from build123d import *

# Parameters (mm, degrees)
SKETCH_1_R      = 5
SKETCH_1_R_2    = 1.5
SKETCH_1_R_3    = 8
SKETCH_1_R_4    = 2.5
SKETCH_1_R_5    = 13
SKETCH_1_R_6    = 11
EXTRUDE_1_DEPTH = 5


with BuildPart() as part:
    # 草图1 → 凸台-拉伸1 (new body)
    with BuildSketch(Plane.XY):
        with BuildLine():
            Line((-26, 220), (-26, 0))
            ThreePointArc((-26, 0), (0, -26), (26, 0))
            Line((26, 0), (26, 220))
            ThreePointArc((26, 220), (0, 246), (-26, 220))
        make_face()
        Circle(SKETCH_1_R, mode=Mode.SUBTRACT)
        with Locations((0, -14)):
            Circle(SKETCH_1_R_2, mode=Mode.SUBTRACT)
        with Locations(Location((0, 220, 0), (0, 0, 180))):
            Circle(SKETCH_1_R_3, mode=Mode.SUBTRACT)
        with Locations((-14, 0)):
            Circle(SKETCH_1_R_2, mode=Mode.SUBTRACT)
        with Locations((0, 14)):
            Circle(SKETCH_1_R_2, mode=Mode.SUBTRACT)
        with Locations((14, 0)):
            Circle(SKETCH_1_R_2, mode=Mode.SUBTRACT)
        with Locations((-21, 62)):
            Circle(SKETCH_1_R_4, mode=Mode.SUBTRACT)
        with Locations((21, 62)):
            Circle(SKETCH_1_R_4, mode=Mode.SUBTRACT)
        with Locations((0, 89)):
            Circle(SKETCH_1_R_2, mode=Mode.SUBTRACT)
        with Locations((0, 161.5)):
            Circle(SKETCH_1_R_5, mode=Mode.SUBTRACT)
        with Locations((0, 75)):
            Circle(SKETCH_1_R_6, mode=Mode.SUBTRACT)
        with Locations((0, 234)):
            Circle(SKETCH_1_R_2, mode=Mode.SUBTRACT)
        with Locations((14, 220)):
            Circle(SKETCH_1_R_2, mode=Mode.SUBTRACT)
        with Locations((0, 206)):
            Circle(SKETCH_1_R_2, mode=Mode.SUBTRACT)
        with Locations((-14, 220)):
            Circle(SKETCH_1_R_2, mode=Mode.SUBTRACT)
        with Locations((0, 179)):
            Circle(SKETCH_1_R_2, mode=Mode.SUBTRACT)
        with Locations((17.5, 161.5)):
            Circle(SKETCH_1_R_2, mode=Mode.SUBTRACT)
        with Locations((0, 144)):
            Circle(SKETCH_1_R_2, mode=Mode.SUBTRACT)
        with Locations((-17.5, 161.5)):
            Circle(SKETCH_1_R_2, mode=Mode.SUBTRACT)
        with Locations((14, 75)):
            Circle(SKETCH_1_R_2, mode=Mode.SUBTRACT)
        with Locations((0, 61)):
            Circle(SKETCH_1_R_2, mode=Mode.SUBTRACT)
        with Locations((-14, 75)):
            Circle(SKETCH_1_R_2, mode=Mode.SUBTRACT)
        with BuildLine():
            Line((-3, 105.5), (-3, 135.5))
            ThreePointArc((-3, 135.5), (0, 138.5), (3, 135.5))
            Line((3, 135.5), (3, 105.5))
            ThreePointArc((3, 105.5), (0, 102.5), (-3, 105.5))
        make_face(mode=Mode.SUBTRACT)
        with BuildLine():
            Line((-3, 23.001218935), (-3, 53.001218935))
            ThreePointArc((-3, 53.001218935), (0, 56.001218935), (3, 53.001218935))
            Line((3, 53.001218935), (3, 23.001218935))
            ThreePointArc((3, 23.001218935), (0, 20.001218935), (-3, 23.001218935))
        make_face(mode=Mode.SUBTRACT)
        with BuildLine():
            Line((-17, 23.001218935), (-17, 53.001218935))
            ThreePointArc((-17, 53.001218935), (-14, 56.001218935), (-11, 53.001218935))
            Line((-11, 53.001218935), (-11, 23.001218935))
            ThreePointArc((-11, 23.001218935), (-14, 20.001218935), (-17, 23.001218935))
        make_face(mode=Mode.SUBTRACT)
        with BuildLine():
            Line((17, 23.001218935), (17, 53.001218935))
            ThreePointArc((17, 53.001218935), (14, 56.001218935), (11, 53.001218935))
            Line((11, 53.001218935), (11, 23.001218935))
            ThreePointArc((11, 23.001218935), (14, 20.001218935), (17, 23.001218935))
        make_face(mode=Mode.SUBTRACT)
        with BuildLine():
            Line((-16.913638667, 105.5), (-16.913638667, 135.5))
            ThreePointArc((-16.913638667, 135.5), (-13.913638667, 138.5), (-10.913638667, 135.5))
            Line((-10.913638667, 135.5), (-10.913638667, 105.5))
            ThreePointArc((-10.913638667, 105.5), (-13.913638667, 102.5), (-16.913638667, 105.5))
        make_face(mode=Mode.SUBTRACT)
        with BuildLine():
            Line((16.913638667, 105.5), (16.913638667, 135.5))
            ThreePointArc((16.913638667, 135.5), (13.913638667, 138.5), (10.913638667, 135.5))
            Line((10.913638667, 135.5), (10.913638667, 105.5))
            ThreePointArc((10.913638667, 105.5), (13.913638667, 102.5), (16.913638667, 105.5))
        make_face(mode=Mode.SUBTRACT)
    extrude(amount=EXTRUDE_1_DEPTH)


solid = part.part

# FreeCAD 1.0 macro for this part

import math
import FreeCAD as App
import Part
import Sketcher
Q = App.Units.Quantity

doc = App.newDocument("Part")
body = doc.addObject("PartDesign::Body", "Body")

# Sketch on XY plane
sketch1 = body.newObject("Sketcher::SketchObject", "Sketch")
sketch1.AttachmentSupport = (doc.getObject("XY_Plane"), [""])
sketch1.MapMode = "FlatFace"
sketch1.addGeometry(Part.LineSegment(App.Vector(-26, 220, 0), App.Vector(-26, 0, 0)), False)
sketch1.addGeometry(Part.ArcOfCircle(Part.Circle(App.Vector(0, 0, 0), App.Vector(0, 0, 1), 26), math.radians(180), math.radians(360)), False)
sketch1.addGeometry(Part.LineSegment(App.Vector(26, 0, 0), App.Vector(26, 220, 0)), False)
sketch1.addGeometry(Part.ArcOfCircle(Part.Circle(App.Vector(0, 220, 0), App.Vector(0, 0, 1), 26), math.radians(0), math.radians(180)), False)
sketch1.addGeometry(Part.Circle(App.Vector(-14, 0, 0), App.Vector(0, 0, 1), 1.5), False)
sketch1.addGeometry(Part.ArcOfCircle(Part.Circle(App.Vector(-14, 23, 0), App.Vector(0, 0, 1), 3), math.radians(180), math.radians(360)), False)
sketch1.addGeometry(Part.LineSegment(App.Vector(-17, 23, 0), App.Vector(-17, 53, 0)), False)
sketch1.addGeometry(Part.ArcOfCircle(Part.Circle(App.Vector(-14, 53, 0), App.Vector(0, 0, 1), 3), math.radians(0), math.radians(180)), False)
sketch1.addGeometry(Part.LineSegment(App.Vector(-11, 53, 0), App.Vector(-11, 23, 0)), False)
sketch1.addGeometry(Part.Circle(App.Vector(-21, 62, 0), App.Vector(0, 0, 1), 2.5), False)
sketch1.addGeometry(Part.Circle(App.Vector(-14, 75, 0), App.Vector(0, 0, 1), 1.5), False)
sketch1.addGeometry(Part.Circle(App.Vector(0, -14, 0), App.Vector(0, 0, 1), 1.5), False)
sketch1.addGeometry(Part.Circle(App.Vector(0, 0, 0), App.Vector(0, 0, 1), 5), False)
sketch1.addGeometry(Part.Circle(App.Vector(0, 14, 0), App.Vector(0, 0, 1), 1.5), False)
sketch1.addGeometry(Part.ArcOfCircle(Part.Circle(App.Vector(0, 23, 0), App.Vector(0, 0, 1), 3), math.radians(180), math.radians(360)), False)
sketch1.addGeometry(Part.LineSegment(App.Vector(-3, 23, 0), App.Vector(-3, 53, 0)), False)
sketch1.addGeometry(Part.ArcOfCircle(Part.Circle(App.Vector(0, 53, 0), App.Vector(0, 0, 1), 3), math.radians(0), math.radians(180)), False)
sketch1.addGeometry(Part.LineSegment(App.Vector(3, 53, 0), App.Vector(3, 23, 0)), False)
sketch1.addGeometry(Part.Circle(App.Vector(14, 0, 0), App.Vector(0, 0, 1), 1.5), False)
sketch1.addGeometry(Part.LineSegment(App.Vector(17, 53, 0), App.Vector(17, 23, 0)), False)
sketch1.addGeometry(Part.ArcOfCircle(Part.Circle(App.Vector(14, 23, 0), App.Vector(0, 0, 1), 3), math.radians(180), math.radians(360)), False)
sketch1.addGeometry(Part.LineSegment(App.Vector(11, 23, 0), App.Vector(11, 53, 0)), False)
sketch1.addGeometry(Part.ArcOfCircle(Part.Circle(App.Vector(14, 53, 0), App.Vector(0, 0, 1), 3), math.radians(0), math.radians(180)), False)
sketch1.addGeometry(Part.Circle(App.Vector(0, 61, 0), App.Vector(0, 0, 1), 1.5), False)
sketch1.addGeometry(Part.Circle(App.Vector(0, 75, 0), App.Vector(0, 0, 1), 11), False)
sketch1.addGeometry(Part.Circle(App.Vector(0, 89, 0), App.Vector(0, 0, 1), 1.5), False)
sketch1.addGeometry(Part.Circle(App.Vector(14, 75, 0), App.Vector(0, 0, 1), 1.5), False)
sketch1.addGeometry(Part.Circle(App.Vector(21, 62, 0), App.Vector(0, 0, 1), 2.5), False)
sketch1.addGeometry(Part.ArcOfCircle(Part.Circle(App.Vector(-13.9, 105.5, 0), App.Vector(0, 0, 1), 3), math.radians(180), math.radians(360)), False)
sketch1.addGeometry(Part.LineSegment(App.Vector(-16.9, 105.5, 0), App.Vector(-16.9, 135.5, 0)), False)
sketch1.addGeometry(Part.ArcOfCircle(Part.Circle(App.Vector(-13.9, 135.5, 0), App.Vector(0, 0, 1), 3), math.radians(0), math.radians(180)), False)
sketch1.addGeometry(Part.LineSegment(App.Vector(-10.9, 135.5, 0), App.Vector(-10.9, 105.5, 0)), False)
sketch1.addGeometry(Part.Circle(App.Vector(-17.5, 161.5, 0), App.Vector(0, 0, 1), 1.5), False)
sketch1.addGeometry(Part.Circle(App.Vector(-14, 220, 0), App.Vector(0, 0, 1), 1.5), False)
sketch1.addGeometry(Part.ArcOfCircle(Part.Circle(App.Vector(0, 105.5, 0), App.Vector(0, 0, 1), 3), math.radians(180), math.radians(360)), False)
sketch1.addGeometry(Part.LineSegment(App.Vector(-3, 105.5, 0), App.Vector(-3, 135.5, 0)), False)
sketch1.addGeometry(Part.ArcOfCircle(Part.Circle(App.Vector(0, 135.5, 0), App.Vector(0, 0, 1), 3), math.radians(0), math.radians(180)), False)
sketch1.addGeometry(Part.LineSegment(App.Vector(3, 135.5, 0), App.Vector(3, 105.5, 0)), False)
sketch1.addGeometry(Part.Circle(App.Vector(0, 144, 0), App.Vector(0, 0, 1), 1.5), False)
sketch1.addGeometry(Part.Circle(App.Vector(0, 161.5, 0), App.Vector(0, 0, 1), 13), False)
sketch1.addGeometry(Part.LineSegment(App.Vector(16.9, 135.5, 0), App.Vector(16.9, 105.5, 0)), False)
sketch1.addGeometry(Part.ArcOfCircle(Part.Circle(App.Vector(13.9, 105.5, 0), App.Vector(0, 0, 1), 3), math.radians(180), math.radians(360)), False)
sketch1.addGeometry(Part.LineSegment(App.Vector(10.9, 105.5, 0), App.Vector(10.9, 135.5, 0)), False)
sketch1.addGeometry(Part.ArcOfCircle(Part.Circle(App.Vector(13.9, 135.5, 0), App.Vector(0, 0, 1), 3), math.radians(0), math.radians(180)), False)
sketch1.addGeometry(Part.Circle(App.Vector(17.5, 161.5, 0), App.Vector(0, 0, 1), 1.5), False)
sketch1.addGeometry(Part.Circle(App.Vector(0, 179, 0), App.Vector(0, 0, 1), 1.5), False)
sketch1.addGeometry(Part.Circle(App.Vector(0, 206, 0), App.Vector(0, 0, 1), 1.5), False)
sketch1.addGeometry(Part.Circle(App.Vector(0, 220, 0), App.Vector(0, 0, 1), 8), False)
sketch1.addGeometry(Part.Circle(App.Vector(0, 234, 0), App.Vector(0, 0, 1), 1.5), False)
sketch1.addGeometry(Part.Circle(App.Vector(14, 220, 0), App.Vector(0, 0, 1), 1.5), False)
sketch1.addConstraint(Sketcher.Constraint("Tangent", 0, 2, 1, 1))
sketch1.addConstraint(Sketcher.Constraint("Tangent", 1, 2, 2, 1))
sketch1.addConstraint(Sketcher.Constraint("Tangent", 2, 2, 3, 1))
sketch1.addConstraint(Sketcher.Constraint("Tangent", 3, 2, 0, 1))
sketch1.addConstraint(Sketcher.Constraint("Tangent", 5, 1, 6, 1))
sketch1.addConstraint(Sketcher.Constraint("Tangent", 6, 2, 7, 2))
sketch1.addConstraint(Sketcher.Constraint("Tangent", 7, 1, 8, 1))
sketch1.addConstraint(Sketcher.Constraint("Tangent", 8, 2, 5, 2))
sketch1.addConstraint(Sketcher.Constraint("Tangent", 14, 1, 15, 1))
sketch1.addConstraint(Sketcher.Constraint("Tangent", 15, 2, 16, 2))
sketch1.addConstraint(Sketcher.Constraint("Tangent", 16, 1, 17, 1))
sketch1.addConstraint(Sketcher.Constraint("Tangent", 17, 2, 14, 2))
sketch1.addConstraint(Sketcher.Constraint("Tangent", 19, 2, 20, 2))
sketch1.addConstraint(Sketcher.Constraint("Tangent", 20, 1, 21, 1))
sketch1.addConstraint(Sketcher.Constraint("Tangent", 21, 2, 22, 2))
sketch1.addConstraint(Sketcher.Constraint("Tangent", 22, 1, 19, 1))
sketch1.addConstraint(Sketcher.Constraint("Tangent", 28, 1, 29, 1))
sketch1.addConstraint(Sketcher.Constraint("Tangent", 29, 2, 30, 2))
sketch1.addConstraint(Sketcher.Constraint("Tangent", 30, 1, 31, 1))
sketch1.addConstraint(Sketcher.Constraint("Tangent", 31, 2, 28, 2))
sketch1.addConstraint(Sketcher.Constraint("Tangent", 34, 1, 35, 1))
sketch1.addConstraint(Sketcher.Constraint("Tangent", 35, 2, 36, 2))
sketch1.addConstraint(Sketcher.Constraint("Tangent", 36, 1, 37, 1))
sketch1.addConstraint(Sketcher.Constraint("Tangent", 37, 2, 34, 2))
sketch1.addConstraint(Sketcher.Constraint("Tangent", 40, 2, 41, 2))
sketch1.addConstraint(Sketcher.Constraint("Tangent", 41, 1, 42, 1))
sketch1.addConstraint(Sketcher.Constraint("Tangent", 42, 2, 43, 2))
sketch1.addConstraint(Sketcher.Constraint("Tangent", 43, 1, 40, 1))
sketch1.addConstraint(Sketcher.Constraint("Vertical", 0))
sketch1.addConstraint(Sketcher.Constraint("Vertical", 2))
sketch1.addConstraint(Sketcher.Constraint("Vertical", 6))
sketch1.addConstraint(Sketcher.Constraint("Vertical", 8))
sketch1.addConstraint(Sketcher.Constraint("Vertical", 15))
sketch1.addConstraint(Sketcher.Constraint("Vertical", 17))
sketch1.addConstraint(Sketcher.Constraint("Vertical", 19))
sketch1.addConstraint(Sketcher.Constraint("Vertical", 21))
sketch1.addConstraint(Sketcher.Constraint("Vertical", 29))
sketch1.addConstraint(Sketcher.Constraint("Vertical", 31))
sketch1.addConstraint(Sketcher.Constraint("Vertical", 35))
sketch1.addConstraint(Sketcher.Constraint("Vertical", 37))
sketch1.addConstraint(Sketcher.Constraint("Vertical", 40))
sketch1.addConstraint(Sketcher.Constraint("Vertical", 42))
sketch1.addConstraint(Sketcher.Constraint("Coincident", 1, 3, -1, 1))
sketch1.addConstraint(Sketcher.Constraint("Coincident", 12, 3, -1, 1))
sketch1.addConstraint(Sketcher.Constraint("Coincident", 47, 3, 3, 3))
sketch1.addConstraint(Sketcher.Constraint("Equal", 4, 10))
sketch1.addConstraint(Sketcher.Constraint("Equal", 10, 11))
sketch1.addConstraint(Sketcher.Constraint("Equal", 11, 13))
sketch1.addConstraint(Sketcher.Constraint("Equal", 7, 14))
sketch1.addConstraint(Sketcher.Constraint("Equal", 13, 18))
sketch1.addConstraint(Sketcher.Constraint("Equal", 16, 20))
sketch1.addConstraint(Sketcher.Constraint("Equal", 18, 23))
sketch1.addConstraint(Sketcher.Constraint("Equal", 23, 25))
sketch1.addConstraint(Sketcher.Constraint("Equal", 25, 26))
sketch1.addConstraint(Sketcher.Constraint("Equal", 9, 27))
sketch1.addConstraint(Sketcher.Constraint("Equal", 22, 28))
sketch1.addConstraint(Sketcher.Constraint("Equal", 26, 32))
sketch1.addConstraint(Sketcher.Constraint("Equal", 32, 33))
sketch1.addConstraint(Sketcher.Constraint("Equal", 30, 34))
sketch1.addConstraint(Sketcher.Constraint("Equal", 33, 38))
sketch1.addConstraint(Sketcher.Constraint("Equal", 36, 41))
sketch1.addConstraint(Sketcher.Constraint("Equal", 38, 44))
sketch1.addConstraint(Sketcher.Constraint("Equal", 44, 45))
sketch1.addConstraint(Sketcher.Constraint("Equal", 45, 46))
sketch1.addConstraint(Sketcher.Constraint("Equal", 46, 48))
sketch1.addConstraint(Sketcher.Constraint("Equal", 48, 49))
sketch1.addConstraint(Sketcher.Constraint("Symmetric", 11, 3, 13, 3, -1, 1))
sketch1.addConstraint(Sketcher.Constraint("Symmetric", 4, 3, 18, 3, -1, 1))
sketch1.addConstraint(Sketcher.Constraint("Symmetric", 5, 3, 20, 3, -2))
sketch1.addConstraint(Sketcher.Constraint("Symmetric", 10, 3, 26, 3, -2))
sketch1.addConstraint(Sketcher.Constraint("Symmetric", 9, 3, 27, 3, -2))
sketch1.addConstraint(Sketcher.Constraint("Symmetric", 28, 3, 41, 3, -2))
sketch1.addConstraint(Sketcher.Constraint("Symmetric", 32, 3, 44, 3, -2))
sketch1.addConstraint(Sketcher.Constraint("Symmetric", 33, 3, 49, 3, -2))
sketch1.addConstraint(Sketcher.Constraint("PointOnObject", 4, 3, -1))
sketch1.addConstraint(Sketcher.Constraint("PointOnObject", 11, 3, -2))
sketch1.addConstraint(Sketcher.Constraint("PointOnObject", 14, 3, -2))
sketch1.addConstraint(Sketcher.Constraint("PointOnObject", 23, 3, -2))
sketch1.addConstraint(Sketcher.Constraint("PointOnObject", 24, 3, -2))
sketch1.addConstraint(Sketcher.Constraint("PointOnObject", 25, 3, -2))
sketch1.addConstraint(Sketcher.Constraint("PointOnObject", 34, 3, -2))
sketch1.addConstraint(Sketcher.Constraint("PointOnObject", 38, 3, -2))
sketch1.addConstraint(Sketcher.Constraint("PointOnObject", 39, 3, -2))
sketch1.addConstraint(Sketcher.Constraint("PointOnObject", 45, 3, -2))
sketch1.addConstraint(Sketcher.Constraint("PointOnObject", 46, 3, -2))
sketch1.addConstraint(Sketcher.Constraint("PointOnObject", 48, 3, -2))
sketch1.addConstraint(Sketcher.Constraint("Horizontal", 5, 3, 14, 3))
sketch1.addConstraint(Sketcher.Constraint("Horizontal", 7, 3, 16, 3))
sketch1.addConstraint(Sketcher.Constraint("Horizontal", 16, 3, 22, 3))
sketch1.addConstraint(Sketcher.Constraint("Horizontal", 10, 3, 24, 3))
sketch1.addConstraint(Sketcher.Constraint("Horizontal", 3, 3, 33, 3))
sketch1.addConstraint(Sketcher.Constraint("Horizontal", 28, 3, 34, 3))
sketch1.addConstraint(Sketcher.Constraint("Horizontal", 30, 3, 36, 3))
sketch1.addConstraint(Sketcher.Constraint("Horizontal", 32, 3, 39, 3))
sketch1.addConstraint(Sketcher.Constraint("Horizontal", 36, 3, 43, 3))
sketch1.addConstraint(Sketcher.Constraint("Vertical", 4, 3, 5, 3))
sketch1.addConstraint(Sketcher.Constraint("Vertical", 7, 3, 10, 3))
sketch1.addConstraint(Sketcher.Constraint("Vertical", 10, 3, 33, 3))
sketch1.addConstraint(Sketcher.Constraint("Equal", 21, 29))
sketch1.addConstraint(Sketcher.Constraint("Diameter", 4, Q("3 mm")))
sketch1.addConstraint(Sketcher.Constraint("Diameter", 9, Q("5 mm")))
sketch1.addConstraint(Sketcher.Constraint("Diameter", 12, Q("10 mm")))
sketch1.addConstraint(Sketcher.Constraint("Diameter", 24, Q("22 mm")))
sketch1.addConstraint(Sketcher.Constraint("Diameter", 39, Q("26 mm")))
sketch1.addConstraint(Sketcher.Constraint("Diameter", 47, Q("16 mm")))
sketch1.addConstraint(Sketcher.Constraint("Radius", 1, Q("26 mm")))
sketch1.addConstraint(Sketcher.Constraint("Radius", 5, Q("3 mm")))
sketch1.addConstraint(Sketcher.Constraint("DistanceY", 0, 2, 0, 1, Q("220 mm")))
sketch1.addConstraint(Sketcher.Constraint("DistanceY", 6, 1, 6, 2, Q("30 mm")))
sketch1.addConstraint(Sketcher.Constraint("DistanceX", 4, 3, -1, 1, Q("14 mm")))
sketch1.addConstraint(Sketcher.Constraint("DistanceX", 9, 3, -1, 1, Q("21 mm")))
sketch1.addConstraint(Sketcher.Constraint("DistanceY", -1, 1, 9, 3, Q("62 mm")))
sketch1.addConstraint(Sketcher.Constraint("DistanceY", -1, 1, 10, 3, Q("75 mm")))
sketch1.addConstraint(Sketcher.Constraint("DistanceY", 11, 3, -1, 1, Q("14 mm")))
sketch1.addConstraint(Sketcher.Constraint("DistanceY", -1, 1, 23, 3, Q("61 mm")))
sketch1.addConstraint(Sketcher.Constraint("DistanceY", -1, 1, 25, 3, Q("89 mm")))
sketch1.addConstraint(Sketcher.Constraint("DistanceY", -1, 1, 38, 3, Q("144 mm")))
sketch1.addConstraint(Sketcher.Constraint("DistanceY", -1, 1, 45, 3, Q("179 mm")))
sketch1.addConstraint(Sketcher.Constraint("DistanceY", -1, 1, 46, 3, Q("206 mm")))
sketch1.addConstraint(Sketcher.Constraint("DistanceY", -1, 1, 48, 3, Q("234 mm")))
sketch1.addConstraint(Sketcher.Constraint("DistanceY", -1, 1, 28, 3, Q("105.5 mm")))
sketch1.addConstraint(Sketcher.Constraint("DistanceX", 32, 3, -1, 1, Q("17.5 mm")))
sketch1.addConstraint(Sketcher.Constraint("DistanceY", -1, 1, 32, 3, Q("161.5 mm")))
sketch1.addConstraint(Sketcher.Constraint("DistanceY", -1, 1, 5, 3, Q("23.001219 mm")))
sketch1.addConstraint(Sketcher.Constraint("DistanceX", 28, 3, -1, 1, Q("13.913639 mm")))
pad1 = body.newObject("PartDesign::Pad", "Pad")
pad1.Profile = sketch1
pad1.Length = 5

doc.recompute()
